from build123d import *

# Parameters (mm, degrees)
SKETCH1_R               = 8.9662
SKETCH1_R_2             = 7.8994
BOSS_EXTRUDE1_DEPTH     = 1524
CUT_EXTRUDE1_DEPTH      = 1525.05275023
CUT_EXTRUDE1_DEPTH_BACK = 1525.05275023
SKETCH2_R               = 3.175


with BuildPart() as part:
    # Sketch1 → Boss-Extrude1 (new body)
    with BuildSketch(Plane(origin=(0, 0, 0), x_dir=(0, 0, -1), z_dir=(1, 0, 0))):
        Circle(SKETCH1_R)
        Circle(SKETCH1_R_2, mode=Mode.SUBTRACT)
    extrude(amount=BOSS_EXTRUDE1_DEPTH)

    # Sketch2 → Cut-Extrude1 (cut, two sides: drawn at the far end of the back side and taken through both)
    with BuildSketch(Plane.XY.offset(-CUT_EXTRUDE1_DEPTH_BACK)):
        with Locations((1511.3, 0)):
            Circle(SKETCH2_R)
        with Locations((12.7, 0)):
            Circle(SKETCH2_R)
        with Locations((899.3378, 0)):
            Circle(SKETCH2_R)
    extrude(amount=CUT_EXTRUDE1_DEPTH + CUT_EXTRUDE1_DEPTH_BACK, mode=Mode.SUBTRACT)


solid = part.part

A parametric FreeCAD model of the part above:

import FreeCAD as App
import Part
import Sketcher

V = App.Vector
Q = App.Units.Quantity

doc = App.newDocument("Part")
params = doc.addObject("Spreadsheet::Sheet", "Params")
for row, (alias, value) in enumerate([
    ("sketch1_diameter", "0.706 in"),
    ("sketch1_diameter2", "0.622 in"),
    ("pad1_length", "60 in"),
    ("sketch2_diameter", "0.25 in"),
], start=1):
    params.set(f"A{row}", alias)
    params.set(f"B{row}", "=" + value)
    params.setAlias(f"B{row}", alias)

body = doc.addObject("PartDesign::Body", "Body")

# Sketch on YZ plane
sketch1 = body.newObject("Sketcher::SketchObject", "Sketch")
sketch1.AttachmentSupport = (doc.getObject("YZ_Plane"), [""])
sketch1.MapMode = "FlatFace"
sketch1.addGeometry(Part.Circle(V(0, 0, 0), V(0, 0, 1), 8.9662), False)
sketch1.addGeometry(Part.Circle(V(0, 0, 0), V(0, 0, 1), 7.8994), False)
sketch1.addConstraint(Sketcher.Constraint("Coincident", 0, 3, -1, 1))
sketch1.addConstraint(Sketcher.Constraint("Coincident", 1, 3, -1, 1))
sketch1.addConstraint(Sketcher.Constraint("Diameter", 0, Q("0.706 in")))
sketch1.addConstraint(Sketcher.Constraint("Diameter", 1, Q("0.622 in")))
sketch1.setExpression("Constraints[2]", "Params.sketch1_diameter")
sketch1.setExpression("Constraints[3]", "Params.sketch1_diameter2")
pad1 = body.newObject("PartDesign::Pad", "Pad")
pad1.Profile = sketch1
pad1.setExpression("Length", "Params.pad1_length")

# Sketch on XY plane
sketch2 = body.newObject("Sketcher::SketchObject", "Sketch001")
sketch2.AttachmentSupport = (doc.getObject("XY_Plane"), [""])
sketch2.MapMode = "FlatFace"
sketch2.addGeometry(Part.Circle(V(1511.3, 0, 0), V(0, 0, 1), 3.175), False)
sketch2.addGeometry(Part.Circle(V(12.7, 0, 0), V(0, 0, 1), 3.175), False)
sketch2.addGeometry(Part.Circle(V(899.3378, 0, 0), V(0, 0, 1), 3.175), False)
sketch2.addConstraint(Sketcher.Constraint("Equal", 0, 1))
sketch2.addConstraint(Sketcher.Constraint("Equal", 1, 2))
sketch2.addConstraint(Sketcher.Constraint("PointOnObject", 0, 3, -1))
sketch2.addConstraint(Sketcher.Constraint("PointOnObject", 1, 3, -1))
sketch2.addConstraint(Sketcher.Constraint("PointOnObject", 2, 3, -1))
sketch2.addConstraint(Sketcher.Constraint("Diameter", 0, Q("0.25 in")))
sketch2.addConstraint(Sketcher.Constraint("DistanceX", 1, 3, 0, 3, Q("59 in")))
sketch2.addConstraint(Sketcher.Constraint("DistanceX", -1, 1, 0, 3, Q("59.5 in")))
sketch2.addConstraint(Sketcher.Constraint("DistanceX", -1, 1, 2, 3, Q("35.407 in")))
sketch2.setExpression("Constraints[5]", "Params.sketch2_diameter")
pocket1 = body.newObject("PartDesign::Pocket", "Pocket")
pocket1.Profile = sketch2
pocket1.Type = "ThroughAll"
pocket1.Midplane = True

doc.recompute()
